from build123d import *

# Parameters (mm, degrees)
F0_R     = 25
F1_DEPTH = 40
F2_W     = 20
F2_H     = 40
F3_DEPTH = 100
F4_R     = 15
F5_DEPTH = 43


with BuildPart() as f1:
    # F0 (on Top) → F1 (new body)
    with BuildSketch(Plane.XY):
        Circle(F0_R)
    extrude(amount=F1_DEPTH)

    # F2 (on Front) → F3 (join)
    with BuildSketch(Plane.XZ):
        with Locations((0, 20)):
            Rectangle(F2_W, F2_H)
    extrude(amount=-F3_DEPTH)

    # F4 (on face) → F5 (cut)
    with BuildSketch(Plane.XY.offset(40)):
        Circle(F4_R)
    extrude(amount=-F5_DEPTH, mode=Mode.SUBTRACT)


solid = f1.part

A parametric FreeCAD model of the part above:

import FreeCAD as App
import Part
import Sketcher

V = App.Vector


def add_polygon(sketch, points):
    """Adds a closed chain of lines whose ends are joined by coincident constraints."""
    first, n = sketch.GeometryCount, len(points)
    for a, b in zip(points, points[1:] + points[:1]):
        sketch.addGeometry(Part.LineSegment(App.Vector(*a, 0), App.Vector(*b, 0)), False)
    for i in range(n):
        sketch.addConstraint(Sketcher.Constraint("Coincident", first + i, 2, first + (i + 1) % n, 1))

doc = App.newDocument("Part")
params = doc.addObject("Spreadsheet::Sheet", "Params")
for row, (alias, value) in enumerate([
    ("sketch1_diameter", "50 mm"),
    ("pad1_length", "40 mm"),
    ("sketch2_width", "20 mm"),
    ("sketch2_height", "40 mm"),
    ("pad2_length", "100 mm"),
    ("sketch3_diameter", "30 mm"),
    ("pocket1_length", "43 mm"),
], start=1):
    params.set(f"A{row}", alias)
    params.set(f"B{row}", "=" + value)
    params.setAlias(f"B{row}", alias)

body = doc.addObject("PartDesign::Body", "Body")

sketch1 = doc.addObject("Sketcher::SketchObject", "Sketch")
body.addObject(sketch1)
sketch1.AttachmentSupport = (doc.XY_Plane, [""])
sketch1.MapMode = "FlatFace"
sketch1.addGeometry(Part.Circle(V(0, 0, 0), V(0, 0, 1), 25), False)
sketch1.addConstraint([
    Sketcher.Constraint("Coincident", 0, 3, -1, 1),
    Sketcher.Constraint("Diameter", 0, 50.0),
])
sketch1.setExpression("Constraints[1]", "Params.sketch1_diameter")
pad1 = doc.addObject("PartDesign::Pad", "Pad")
body.addObject(pad1)
pad1.Profile = sketch1
pad1.setExpression("Length", "Params.pad1_length")

sketch2 = doc.addObject("Sketcher::SketchObject", "Sketch001")
body.addObject(sketch2)
sketch2.AttachmentSupport = (doc.XZ_Plane, [""])
sketch2.MapMode = "FlatFace"
add_polygon(sketch2, [(-10, 40), (-10, 0), (10, 0), (10, 40)])
sketch2.addConstraint([
    Sketcher.Constraint("Vertical", 0),
    Sketcher.Constraint("Horizontal", 1),
    Sketcher.Constraint("Vertical", 2),
    Sketcher.Constraint("Horizontal", 3),
    Sketcher.Constraint("Symmetric", 0, 2, 1, 2, -1, 1),
    Sketcher.Constraint("DistanceX", 1, 1, 1, 2, 20.0),
    Sketcher.Constraint("DistanceY", 0, 2, 0, 1, 40.0),
])
sketch2.setExpression("Constraints[9]", "Params.sketch2_width")
sketch2.setExpression("Constraints[10]", "Params.sketch2_height")
pad2 = doc.addObject("PartDesign::Pad", "Pad001")
body.addObject(pad2)
pad2.Profile = sketch2
pad2.setExpression("Length", "Params.pad2_length")
pad2.Reversed = True

sketch3 = doc.addObject("Sketcher::SketchObject", "Sketch002")
body.addObject(sketch3)
sketch3.AttachmentSupport = (doc.XY_Plane, [""])
sketch3.MapMode = "FlatFace"
sketch3.AttachmentOffset = App.Placement(V(0, 0, 40), App.Rotation())
sketch3.addGeometry(Part.Circle(V(0, 0, 0), V(0, 0, 1), 15), False)
sketch3.addConstraint([
    Sketcher.Constraint("Coincident", 0, 3, -1, 1),
    Sketcher.Constraint("Diameter", 0, 30.0),
])
sketch3.setExpression("Constraints[1]", "Params.sketch3_diameter")
pocket1 = doc.addObject("PartDesign::Pocket", "Pocket")
body.addObject(pocket1)
pocket1.Profile = sketch3
pocket1.setExpression("Length", "Params.pocket1_length")

doc.recompute()
